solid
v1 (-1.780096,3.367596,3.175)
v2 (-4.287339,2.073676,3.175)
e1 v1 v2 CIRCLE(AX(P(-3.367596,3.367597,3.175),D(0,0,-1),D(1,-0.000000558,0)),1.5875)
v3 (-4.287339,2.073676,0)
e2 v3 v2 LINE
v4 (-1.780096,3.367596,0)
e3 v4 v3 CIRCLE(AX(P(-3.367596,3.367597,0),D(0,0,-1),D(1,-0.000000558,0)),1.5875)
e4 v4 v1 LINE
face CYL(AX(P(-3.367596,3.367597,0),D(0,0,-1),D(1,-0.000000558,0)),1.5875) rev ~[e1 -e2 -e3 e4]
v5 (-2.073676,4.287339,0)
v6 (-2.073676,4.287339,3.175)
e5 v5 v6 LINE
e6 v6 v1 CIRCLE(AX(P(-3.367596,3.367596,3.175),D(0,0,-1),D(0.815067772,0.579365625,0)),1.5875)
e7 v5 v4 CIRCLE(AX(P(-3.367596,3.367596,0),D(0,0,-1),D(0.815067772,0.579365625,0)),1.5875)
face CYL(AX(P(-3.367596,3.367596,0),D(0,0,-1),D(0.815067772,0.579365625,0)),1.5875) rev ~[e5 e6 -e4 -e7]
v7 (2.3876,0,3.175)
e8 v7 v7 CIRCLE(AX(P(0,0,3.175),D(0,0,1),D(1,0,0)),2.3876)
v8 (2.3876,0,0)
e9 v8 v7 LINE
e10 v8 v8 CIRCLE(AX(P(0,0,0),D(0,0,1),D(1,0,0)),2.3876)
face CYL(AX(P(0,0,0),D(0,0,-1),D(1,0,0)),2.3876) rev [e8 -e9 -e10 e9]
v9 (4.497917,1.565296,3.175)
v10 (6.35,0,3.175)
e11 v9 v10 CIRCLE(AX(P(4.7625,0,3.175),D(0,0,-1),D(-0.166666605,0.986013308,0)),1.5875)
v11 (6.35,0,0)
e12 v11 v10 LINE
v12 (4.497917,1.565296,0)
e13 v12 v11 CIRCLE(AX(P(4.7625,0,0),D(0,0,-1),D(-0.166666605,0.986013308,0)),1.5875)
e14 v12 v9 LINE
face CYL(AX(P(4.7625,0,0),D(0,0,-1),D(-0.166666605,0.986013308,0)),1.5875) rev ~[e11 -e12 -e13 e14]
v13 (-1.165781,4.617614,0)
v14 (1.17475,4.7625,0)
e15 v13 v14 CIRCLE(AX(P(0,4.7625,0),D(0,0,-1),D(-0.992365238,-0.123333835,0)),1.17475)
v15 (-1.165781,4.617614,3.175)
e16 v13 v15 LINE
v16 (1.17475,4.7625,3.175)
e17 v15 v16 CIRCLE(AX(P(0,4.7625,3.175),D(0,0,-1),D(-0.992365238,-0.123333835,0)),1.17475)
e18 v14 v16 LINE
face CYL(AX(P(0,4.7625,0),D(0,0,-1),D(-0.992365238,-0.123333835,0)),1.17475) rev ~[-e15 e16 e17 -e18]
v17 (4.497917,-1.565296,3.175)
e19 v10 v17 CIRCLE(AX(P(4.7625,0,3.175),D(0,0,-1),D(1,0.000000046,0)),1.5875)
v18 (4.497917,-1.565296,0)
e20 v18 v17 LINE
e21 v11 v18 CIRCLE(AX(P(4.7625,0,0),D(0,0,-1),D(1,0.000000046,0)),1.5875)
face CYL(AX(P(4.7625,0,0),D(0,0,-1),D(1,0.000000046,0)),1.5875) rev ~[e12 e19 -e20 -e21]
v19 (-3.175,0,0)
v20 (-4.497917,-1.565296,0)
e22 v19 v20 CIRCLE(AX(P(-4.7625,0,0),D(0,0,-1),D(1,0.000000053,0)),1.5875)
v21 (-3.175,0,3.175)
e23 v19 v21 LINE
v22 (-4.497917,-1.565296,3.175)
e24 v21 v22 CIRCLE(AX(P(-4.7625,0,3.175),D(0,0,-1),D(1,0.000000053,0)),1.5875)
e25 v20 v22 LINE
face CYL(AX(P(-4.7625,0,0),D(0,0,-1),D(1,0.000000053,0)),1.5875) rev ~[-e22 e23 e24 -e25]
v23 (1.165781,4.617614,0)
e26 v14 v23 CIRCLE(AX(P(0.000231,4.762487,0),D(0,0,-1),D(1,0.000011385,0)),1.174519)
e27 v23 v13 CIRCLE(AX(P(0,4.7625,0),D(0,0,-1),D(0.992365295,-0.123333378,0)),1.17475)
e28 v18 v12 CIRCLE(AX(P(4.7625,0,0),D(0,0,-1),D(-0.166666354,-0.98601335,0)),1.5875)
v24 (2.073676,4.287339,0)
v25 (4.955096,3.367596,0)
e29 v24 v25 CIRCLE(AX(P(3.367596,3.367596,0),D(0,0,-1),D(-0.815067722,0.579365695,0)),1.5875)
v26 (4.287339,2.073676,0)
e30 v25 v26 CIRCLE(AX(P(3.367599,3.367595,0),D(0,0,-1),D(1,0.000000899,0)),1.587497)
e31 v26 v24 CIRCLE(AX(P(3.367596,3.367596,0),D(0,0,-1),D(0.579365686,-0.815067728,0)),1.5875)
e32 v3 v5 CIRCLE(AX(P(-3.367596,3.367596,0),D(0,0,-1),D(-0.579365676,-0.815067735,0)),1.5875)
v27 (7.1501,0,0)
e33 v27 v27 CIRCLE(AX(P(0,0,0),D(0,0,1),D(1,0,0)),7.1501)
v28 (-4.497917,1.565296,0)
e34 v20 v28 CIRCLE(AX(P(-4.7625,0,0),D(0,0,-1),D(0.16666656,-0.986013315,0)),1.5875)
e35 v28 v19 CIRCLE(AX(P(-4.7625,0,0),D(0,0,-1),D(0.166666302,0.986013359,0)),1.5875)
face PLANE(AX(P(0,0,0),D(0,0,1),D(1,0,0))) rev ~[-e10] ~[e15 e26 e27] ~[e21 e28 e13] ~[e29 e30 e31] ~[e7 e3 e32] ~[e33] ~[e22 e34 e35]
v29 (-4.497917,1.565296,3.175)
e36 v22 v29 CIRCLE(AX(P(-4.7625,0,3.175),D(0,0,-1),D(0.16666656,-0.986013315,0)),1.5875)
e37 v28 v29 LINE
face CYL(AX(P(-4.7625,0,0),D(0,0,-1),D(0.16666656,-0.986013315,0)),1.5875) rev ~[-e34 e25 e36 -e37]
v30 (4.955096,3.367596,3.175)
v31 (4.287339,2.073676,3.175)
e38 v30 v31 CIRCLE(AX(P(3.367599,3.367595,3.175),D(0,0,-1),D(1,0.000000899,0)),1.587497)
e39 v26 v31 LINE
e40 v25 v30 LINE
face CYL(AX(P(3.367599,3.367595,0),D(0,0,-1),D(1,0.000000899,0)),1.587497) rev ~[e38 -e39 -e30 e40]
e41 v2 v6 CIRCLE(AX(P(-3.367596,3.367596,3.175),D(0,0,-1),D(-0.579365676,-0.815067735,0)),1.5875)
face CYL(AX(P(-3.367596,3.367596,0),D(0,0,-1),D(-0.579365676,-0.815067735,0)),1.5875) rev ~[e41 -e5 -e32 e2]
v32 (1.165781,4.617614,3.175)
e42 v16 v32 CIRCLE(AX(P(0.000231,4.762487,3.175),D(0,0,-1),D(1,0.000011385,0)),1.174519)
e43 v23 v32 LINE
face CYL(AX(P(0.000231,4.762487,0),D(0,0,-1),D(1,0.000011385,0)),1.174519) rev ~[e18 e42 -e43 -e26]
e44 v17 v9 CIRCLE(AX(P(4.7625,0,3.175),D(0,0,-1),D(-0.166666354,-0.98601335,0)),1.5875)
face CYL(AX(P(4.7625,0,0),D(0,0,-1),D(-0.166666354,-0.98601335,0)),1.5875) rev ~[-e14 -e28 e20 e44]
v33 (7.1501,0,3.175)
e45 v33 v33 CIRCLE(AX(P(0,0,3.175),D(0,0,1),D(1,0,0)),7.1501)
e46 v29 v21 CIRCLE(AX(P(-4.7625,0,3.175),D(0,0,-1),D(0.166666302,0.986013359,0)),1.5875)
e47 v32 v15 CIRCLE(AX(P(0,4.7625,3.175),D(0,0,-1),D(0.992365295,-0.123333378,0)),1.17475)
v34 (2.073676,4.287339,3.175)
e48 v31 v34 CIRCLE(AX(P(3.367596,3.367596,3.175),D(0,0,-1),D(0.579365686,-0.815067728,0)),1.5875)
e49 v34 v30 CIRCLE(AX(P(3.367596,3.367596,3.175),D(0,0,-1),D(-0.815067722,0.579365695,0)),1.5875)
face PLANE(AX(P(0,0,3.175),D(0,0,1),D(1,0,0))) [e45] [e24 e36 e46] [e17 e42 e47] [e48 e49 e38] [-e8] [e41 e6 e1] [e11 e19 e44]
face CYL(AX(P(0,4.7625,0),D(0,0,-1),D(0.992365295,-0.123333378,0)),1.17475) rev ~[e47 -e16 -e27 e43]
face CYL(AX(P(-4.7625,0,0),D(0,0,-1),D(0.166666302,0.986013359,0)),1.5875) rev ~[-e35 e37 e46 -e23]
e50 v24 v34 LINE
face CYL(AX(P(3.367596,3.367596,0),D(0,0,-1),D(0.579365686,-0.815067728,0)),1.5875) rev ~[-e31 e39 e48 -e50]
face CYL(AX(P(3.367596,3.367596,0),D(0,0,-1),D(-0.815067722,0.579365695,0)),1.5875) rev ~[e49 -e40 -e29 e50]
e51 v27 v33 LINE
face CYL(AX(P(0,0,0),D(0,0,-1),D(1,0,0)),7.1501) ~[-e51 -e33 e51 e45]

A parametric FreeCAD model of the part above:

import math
import FreeCAD as App
import Part
import Sketcher
from FreeCAD import Vector
Q = App.Units.Quantity

doc = App.newDocument("Part")
body = doc.addObject("PartDesign::Body", "Body")

# Sketch on XY plane
sketch1 = doc.addObject("Sketcher::SketchObject", "Sketch")
body.addObject(sketch1)
sketch1.AttachmentSupport = (doc.XY_Plane, [""])
sketch1.MapMode = "FlatFace"
sketch1.addGeometry([
    Part.Circle(Vector(0, 0, 0), Vector(0, 0, 1), 7.15),  # 0
    Part.ArcOfCircle(Part.Circle(Vector(-4.76, 0, 0), Vector(0, 0, 1), 1.59), math.radians(80), math.radians(280)),  # 1
    Part.ArcOfCircle(Part.Circle(Vector(-4.76, 0, 0), Vector(0, 0, 1), 1.59), math.radians(0), math.radians(80)),  # 2
    Part.ArcOfCircle(Part.Circle(Vector(-4.76, 0, 0), Vector(0, 0, 1), 1.59), math.radians(-80), math.radians(0)),  # 3
    Part.Circle(Vector(0, 0, 0), Vector(0, 0, 1), 2.39),  # 4
    Part.ArcOfCircle(Part.Circle(Vector(4.76, 0, 0), Vector(0, 0, 1), 1.59), math.radians(-100), math.radians(0)),  # 5
    Part.ArcOfCircle(Part.Circle(Vector(4.76, 0, 0), Vector(0, 0, 1), 1.59), math.radians(100), math.radians(260)),  # 6
    Part.ArcOfCircle(Part.Circle(Vector(4.76, 0, 0), Vector(0, 0, 1), 1.59), math.radians(0), math.radians(100)),  # 7
    Part.ArcOfCircle(Part.Circle(Vector(-3.37, 3.37, 0), Vector(0, 0, 1), 1.59), math.radians(35), math.radians(235)),  # 8
    Part.ArcOfCircle(Part.Circle(Vector(-3.37, 3.37, 0), Vector(0, 0, 1), 1.59), math.radians(0), math.radians(35)),  # 9
    Part.ArcOfCircle(Part.Circle(Vector(-3.37, 3.37, 0), Vector(0, 0, 1), 1.59), math.radians(-125), math.radians(0)),  # 10
    Part.ArcOfCircle(Part.Circle(Vector(3.37, 3.37, 0), Vector(0, 0, 1), 1.59), math.radians(-55), math.radians(0)),  # 11
    Part.ArcOfCircle(Part.Circle(Vector(3.37, 3.37, 0), Vector(0, 0, 1), 1.59), math.radians(145), math.radians(305)),  # 12
    Part.ArcOfCircle(Part.Circle(Vector(3.37, 3.37, 0), Vector(0, 0, 1), 1.59), math.radians(0), math.radians(145)),  # 13
    Part.ArcOfCircle(Part.Circle(Vector(0, 4.76, 0), Vector(0, 0, 1), 1.17), math.radians(-7.09), math.radians(0)),  # 14
    Part.ArcOfCircle(Part.Circle(Vector(0, 4.76, 0), Vector(0, 0, 1), 1.17), math.radians(-173), math.radians(-7)),  # 15
    Part.ArcOfCircle(Part.Circle(Vector(0, 4.76, 0), Vector(0, 0, 1), 1.17), math.radians(0), math.radians(187)),  # 16
], False)
sketch1.addConstraint([
    Sketcher.Constraint("Tangent", 1, 1, 2, 2),
    Sketcher.Constraint("Tangent", 2, 1, 3, 2),
    Sketcher.Constraint("Tangent", 3, 1, 1, 2),
    Sketcher.Constraint("Tangent", 5, 1, 6, 2),
    Sketcher.Constraint("Tangent", 6, 1, 7, 2),
    Sketcher.Constraint("Tangent", 7, 1, 5, 2),
    Sketcher.Constraint("Tangent", 8, 1, 9, 2),
    Sketcher.Constraint("Tangent", 9, 1, 10, 2),
    Sketcher.Constraint("Tangent", 10, 1, 8, 2),
    Sketcher.Constraint("Tangent", 11, 1, 12, 2),
    Sketcher.Constraint("Tangent", 12, 1, 13, 2),
    Sketcher.Constraint("Tangent", 13, 1, 11, 2),
    Sketcher.Constraint("Coincident", 14, 1, 15, 2),
    Sketcher.Constraint("Tangent", 15, 1, 16, 2),
    Sketcher.Constraint("Coincident", 16, 1, 14, 2),
    Sketcher.Constraint("Coincident", 0, 3, -1, 1),
    Sketcher.Constraint("Coincident", 4, 3, -1, 1),
    Sketcher.Constraint("Equal", 3, 5),
    Sketcher.Constraint("Equal", 7, 8),
    Sketcher.Constraint("Equal", 10, 12),
    Sketcher.Constraint("Equal", 15, 16),
    Sketcher.Constraint("Symmetric", 1, 3, 5, 3, -1, 1),
    Sketcher.Constraint("Symmetric", 8, 3, 11, 3, -2),
    Sketcher.Constraint("Symmetric", 3, 1, 5, 1, -2),
    Sketcher.Constraint("Symmetric", 14, 1, 15, 1, -2),
    Sketcher.Constraint("PointOnObject", 2, 1, -1),
    Sketcher.Constraint("PointOnObject", 7, 1, -1),
    Sketcher.Constraint("Horizontal", 1, 1, 6, 1),
    Sketcher.Constraint("Horizontal", 13, 3, 9, 1),
    Sketcher.Constraint("Horizontal", 10, 1, 11, 1),
    Sketcher.Constraint("Horizontal", 8, 1, 12, 1),
    Sketcher.Constraint("Horizontal", 9, 1, 13, 1),
    Sketcher.Constraint("Horizontal", 15, 3, 16, 1),
    Sketcher.Constraint("Vertical", 1, 1, 3, 1),
    Sketcher.Constraint("Diameter", 0, Q("0.563 in")),
    Sketcher.Constraint("Diameter", 4, Q("0.188 in")),
    Sketcher.Constraint("Radius", 1, Q("0.0625 in")),
    Sketcher.Constraint("DistanceX", -1, 1, 7, 1, Q("0.25 in")),
    Sketcher.Constraint("DistanceY", -1, 1, 15, 3, Q("0.1875 in")),
    Sketcher.Constraint("Radius", 14, 1.174519),
    Sketcher.Constraint("Radius", 15, 1.17475),
    Sketcher.Constraint("DistanceX", -1, 1, 11, 3, 3.367599),
    Sketcher.Constraint("DistanceY", 1, 1, 9, 3, 1.8023),
    Sketcher.Constraint("DistanceY", -1, 1, 8, 1, 4.287339),
    Sketcher.Constraint("DistanceX", 10, 1, -1, 1, 4.287339),
    Sketcher.Constraint("DistanceX", -1, 1, 14, 1, 1.165781),
    Sketcher.Constraint("DistanceY", 12, 3, 14, 3, 1.394891),
])
pad1 = doc.addObject("PartDesign::Pad", "Pad")
body.addObject(pad1)
pad1.Profile = sketch1
pad1.Length = Q("0.125 in")

doc.recompute()
